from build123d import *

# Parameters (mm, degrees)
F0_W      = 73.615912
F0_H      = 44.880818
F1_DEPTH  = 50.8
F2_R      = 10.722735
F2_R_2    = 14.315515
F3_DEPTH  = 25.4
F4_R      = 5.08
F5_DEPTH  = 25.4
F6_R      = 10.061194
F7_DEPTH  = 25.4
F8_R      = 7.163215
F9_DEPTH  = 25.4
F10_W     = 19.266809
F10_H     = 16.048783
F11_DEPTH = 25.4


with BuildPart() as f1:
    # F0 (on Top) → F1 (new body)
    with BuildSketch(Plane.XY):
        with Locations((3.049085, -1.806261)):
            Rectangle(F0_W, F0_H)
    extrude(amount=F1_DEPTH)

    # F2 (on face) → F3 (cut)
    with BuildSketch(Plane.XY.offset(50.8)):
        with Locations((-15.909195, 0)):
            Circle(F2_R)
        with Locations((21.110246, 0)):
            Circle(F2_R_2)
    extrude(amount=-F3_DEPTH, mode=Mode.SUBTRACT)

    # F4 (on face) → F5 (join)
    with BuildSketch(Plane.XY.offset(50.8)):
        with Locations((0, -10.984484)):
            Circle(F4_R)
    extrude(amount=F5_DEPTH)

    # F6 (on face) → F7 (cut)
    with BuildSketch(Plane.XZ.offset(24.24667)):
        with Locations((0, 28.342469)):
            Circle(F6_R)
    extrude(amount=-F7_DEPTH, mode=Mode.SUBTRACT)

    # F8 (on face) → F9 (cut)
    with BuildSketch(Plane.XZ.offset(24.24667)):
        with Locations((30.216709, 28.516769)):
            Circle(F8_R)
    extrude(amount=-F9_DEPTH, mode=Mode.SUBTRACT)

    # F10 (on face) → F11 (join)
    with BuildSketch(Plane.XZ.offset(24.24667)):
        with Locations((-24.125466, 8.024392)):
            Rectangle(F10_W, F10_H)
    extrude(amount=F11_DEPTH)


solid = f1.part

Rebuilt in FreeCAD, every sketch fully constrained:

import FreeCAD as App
import Part
import Sketcher

V = App.Vector
Q = App.Units.Quantity

doc = App.newDocument("Part")
params = doc.addObject("Spreadsheet::Sheet", "Params")
for row, (alias, value) in enumerate([
    ("pad1_length", "2 in"),
    ("pocket1_length", "1 in"),
    ("sketch3_diameter", "0.4 in"),
    ("pad2_length", "1 in"),
    ("pocket2_length", "1 in"),
    ("pocket3_length", "1 in"),
    ("pad3_length", "1 in"),
], start=1):
    params.set(f"A{row}", alias)
    params.set(f"B{row}", "=" + value)
    params.setAlias(f"B{row}", alias)

body = doc.addObject("PartDesign::Body", "Body")

# Sketch on XY plane
sketch1 = body.newObject("Sketcher::SketchObject", "Sketch")
sketch1.AttachmentSupport = (doc.getObject("XY_Plane"), [""])
sketch1.MapMode = "FlatFace"
sketch1.addGeometry([
    Part.LineSegment(V(-33.758871, 20.634148, 0), V(-33.758871, -24.24667, 0)),
    Part.LineSegment(V(-33.758871, -24.24667, 0), V(39.857041, -24.24667, 0)),
    Part.LineSegment(V(39.857041, -24.24667, 0), V(39.857041, 20.634148, 0)),
    Part.LineSegment(V(39.857041, 20.634148, 0), V(-33.758871, 20.634148, 0)),
], False)
sketch1.addConstraint([
    Sketcher.Constraint("Coincident", 0, 2, 1, 1),
    Sketcher.Constraint("Coincident", 1, 2, 2, 1),
    Sketcher.Constraint("Coincident", 2, 2, 3, 1),
    Sketcher.Constraint("Coincident", 3, 2, 0, 1),
    Sketcher.Constraint("Vertical", 0),
    Sketcher.Constraint("Horizontal", 1),
    Sketcher.Constraint("Vertical", 2),
    Sketcher.Constraint("Horizontal", 3),
    Sketcher.Constraint("DistanceY", 0, 2, 0, 1, Q("44.880818 mm")),
    Sketcher.Constraint("DistanceX", 1, 1, 1, 2, Q("73.615912 mm")),
    Sketcher.Constraint("DistanceX", 0, 2, -1, 1, Q("33.758871 mm")),
    Sketcher.Constraint("DistanceY", 0, 2, -1, 1, Q("24.24667 mm")),
])
pad1 = body.newObject("PartDesign::Pad", "Pad")
pad1.Profile = sketch1
pad1.setExpression("Length", "Params.pad1_length")

# Sketch on XY plane
sketch2 = body.newObject("Sketcher::SketchObject", "Sketch001")
sketch2.AttachmentSupport = (doc.getObject("XY_Plane"), [""])
sketch2.MapMode = "FlatFace"
sketch2.AttachmentOffset = App.Placement(V(0, 0, 2 * 25.4), App.Rotation())
sketch2.addGeometry([
    Part.Circle(V(-15.909195, 0, 0), V(0, 0, 1), 10.722735),
    Part.Circle(V(21.110246, 0, 0), V(0, 0, 1), 14.315515),
], False)
sketch2.addConstraint([
    Sketcher.Constraint("PointOnObject", 0, 3, -1),
    Sketcher.Constraint("PointOnObject", 1, 3, -1),
    Sketcher.Constraint("Diameter", 0, Q("21.44547 mm")),
    Sketcher.Constraint("Diameter", 1, Q("28.63103 mm")),
    Sketcher.Constraint("DistanceX", 0, 3, 1, 3, Q("37.019441 mm")),
    Sketcher.Constraint("DistanceX", 0, 3, -1, 1, Q("15.909195 mm")),
])
pocket1 = body.newObject("PartDesign::Pocket", "Pocket")
pocket1.Profile = sketch2
pocket1.setExpression("Length", "Params.pocket1_length")

# Sketch on XY plane
sketch3 = body.newObject("Sketcher::SketchObject", "Sketch002")
sketch3.AttachmentSupport = (doc.getObject("XY_Plane"), [""])
sketch3.MapMode = "FlatFace"
sketch3.AttachmentOffset = App.Placement(V(0, 0, 2 * 25.4), App.Rotation())
sketch3.addGeometry(Part.Circle(V(0, -10.984484, 0), V(0, 0, 1), 5.08), False)
sketch3.addConstraint([
    Sketcher.Constraint("PointOnObject", 0, 3, -2),
    Sketcher.Constraint("Diameter", 0, Q("0.4 in")),
    Sketcher.Constraint("DistanceY", 0, 3, -1, 1, Q("10.984484 mm")),
])
sketch3.setExpression("Constraints[1]", "Params.sketch3_diameter")
pad2 = body.newObject("PartDesign::Pad", "Pad001")
pad2.Profile = sketch3
pad2.setExpression("Length", "Params.pad2_length")

# Sketch on XZ plane
sketch4 = body.newObject("Sketcher::SketchObject", "Sketch003")
sketch4.AttachmentSupport = (doc.getObject("XZ_Plane"), [""])
sketch4.MapMode = "FlatFace"
sketch4.AttachmentOffset = App.Placement(V(0, 0, 24.24667), App.Rotation())
sketch4.addGeometry(Part.Circle(V(0, 28.342469, 0), V(0, 0, 1), 10.061194), False)
sketch4.addConstraint([
    Sketcher.Constraint("PointOnObject", 0, 3, -2),
    Sketcher.Constraint("Diameter", 0, Q("20.122388 mm")),
    Sketcher.Constraint("DistanceY", -1, 1, 0, 3, Q("28.342469 mm")),
])
pocket2 = body.newObject("PartDesign::Pocket", "Pocket001")
pocket2.Profile = sketch4
pocket2.setExpression("Length", "Params.pocket2_length")

# Sketch on XZ plane
sketch5 = body.newObject("Sketcher::SketchObject", "Sketch004")
sketch5.AttachmentSupport = (doc.getObject("XZ_Plane"), [""])
sketch5.MapMode = "FlatFace"
sketch5.AttachmentOffset = App.Placement(V(0, 0, 24.24667), App.Rotation())
sketch5.addGeometry(Part.Circle(V(30.216709, 28.516769, 0), V(0, 0, 1), 7.163215), False)
sketch5.addConstraint([
    Sketcher.Constraint("Diameter", 0, Q("14.32643 mm")),
    Sketcher.Constraint("DistanceX", -1, 1, 0, 3, Q("30.216709 mm")),
    Sketcher.Constraint("DistanceY", -1, 1, 0, 3, Q("28.516769 mm")),
])
pocket3 = body.newObject("PartDesign::Pocket", "Pocket002")
pocket3.Profile = sketch5
pocket3.setExpression("Length", "Params.pocket3_length")

# Sketch on XZ plane
sketch6 = body.newObject("Sketcher::SketchObject", "Sketch005")
sketch6.AttachmentSupport = (doc.getObject("XZ_Plane"), [""])
sketch6.MapMode = "FlatFace"
sketch6.AttachmentOffset = App.Placement(V(0, 0, 24.24667), App.Rotation())
sketch6.addGeometry([
    Part.LineSegment(V(-33.758871, 16.048783, 0), V(-33.758871, 0, 0)),
    Part.LineSegment(V(-33.758871, 0, 0), V(-14.492062, 0, 0)),
    Part.LineSegment(V(-14.492062, 0, 0), V(-14.492062, 16.048783, 0)),
    Part.LineSegment(V(-14.492062, 16.048783, 0), V(-33.758871, 16.048783, 0)),
], False)
sketch6.addConstraint([
    Sketcher.Constraint("Coincident", 0, 2, 1, 1),
    Sketcher.Constraint("Coincident", 1, 2, 2, 1),
    Sketcher.Constraint("Coincident", 2, 2, 3, 1),
    Sketcher.Constraint("Coincident", 3, 2, 0, 1),
    Sketcher.Constraint("Vertical", 0),
    Sketcher.Constraint("Horizontal", 1),
    Sketcher.Constraint("Vertical", 2),
    Sketcher.Constraint("Horizontal", 3),
    Sketcher.Constraint("PointOnObject", 0, 2, -1),
    Sketcher.Constraint("DistanceX", 1, 1, 1, 2, Q("19.266809 mm")),
    Sketcher.Constraint("DistanceY", 0, 2, 0, 1, Q("16.048783 mm")),
    Sketcher.Constraint("DistanceX", 0, 2, -1, 1, Q("33.758871 mm")),
])
pad3 = body.newObject("PartDesign::Pad", "Pad002")
pad3.Profile = sketch6
pad3.setExpression("Length", "Params.pad3_length")

doc.recompute()
